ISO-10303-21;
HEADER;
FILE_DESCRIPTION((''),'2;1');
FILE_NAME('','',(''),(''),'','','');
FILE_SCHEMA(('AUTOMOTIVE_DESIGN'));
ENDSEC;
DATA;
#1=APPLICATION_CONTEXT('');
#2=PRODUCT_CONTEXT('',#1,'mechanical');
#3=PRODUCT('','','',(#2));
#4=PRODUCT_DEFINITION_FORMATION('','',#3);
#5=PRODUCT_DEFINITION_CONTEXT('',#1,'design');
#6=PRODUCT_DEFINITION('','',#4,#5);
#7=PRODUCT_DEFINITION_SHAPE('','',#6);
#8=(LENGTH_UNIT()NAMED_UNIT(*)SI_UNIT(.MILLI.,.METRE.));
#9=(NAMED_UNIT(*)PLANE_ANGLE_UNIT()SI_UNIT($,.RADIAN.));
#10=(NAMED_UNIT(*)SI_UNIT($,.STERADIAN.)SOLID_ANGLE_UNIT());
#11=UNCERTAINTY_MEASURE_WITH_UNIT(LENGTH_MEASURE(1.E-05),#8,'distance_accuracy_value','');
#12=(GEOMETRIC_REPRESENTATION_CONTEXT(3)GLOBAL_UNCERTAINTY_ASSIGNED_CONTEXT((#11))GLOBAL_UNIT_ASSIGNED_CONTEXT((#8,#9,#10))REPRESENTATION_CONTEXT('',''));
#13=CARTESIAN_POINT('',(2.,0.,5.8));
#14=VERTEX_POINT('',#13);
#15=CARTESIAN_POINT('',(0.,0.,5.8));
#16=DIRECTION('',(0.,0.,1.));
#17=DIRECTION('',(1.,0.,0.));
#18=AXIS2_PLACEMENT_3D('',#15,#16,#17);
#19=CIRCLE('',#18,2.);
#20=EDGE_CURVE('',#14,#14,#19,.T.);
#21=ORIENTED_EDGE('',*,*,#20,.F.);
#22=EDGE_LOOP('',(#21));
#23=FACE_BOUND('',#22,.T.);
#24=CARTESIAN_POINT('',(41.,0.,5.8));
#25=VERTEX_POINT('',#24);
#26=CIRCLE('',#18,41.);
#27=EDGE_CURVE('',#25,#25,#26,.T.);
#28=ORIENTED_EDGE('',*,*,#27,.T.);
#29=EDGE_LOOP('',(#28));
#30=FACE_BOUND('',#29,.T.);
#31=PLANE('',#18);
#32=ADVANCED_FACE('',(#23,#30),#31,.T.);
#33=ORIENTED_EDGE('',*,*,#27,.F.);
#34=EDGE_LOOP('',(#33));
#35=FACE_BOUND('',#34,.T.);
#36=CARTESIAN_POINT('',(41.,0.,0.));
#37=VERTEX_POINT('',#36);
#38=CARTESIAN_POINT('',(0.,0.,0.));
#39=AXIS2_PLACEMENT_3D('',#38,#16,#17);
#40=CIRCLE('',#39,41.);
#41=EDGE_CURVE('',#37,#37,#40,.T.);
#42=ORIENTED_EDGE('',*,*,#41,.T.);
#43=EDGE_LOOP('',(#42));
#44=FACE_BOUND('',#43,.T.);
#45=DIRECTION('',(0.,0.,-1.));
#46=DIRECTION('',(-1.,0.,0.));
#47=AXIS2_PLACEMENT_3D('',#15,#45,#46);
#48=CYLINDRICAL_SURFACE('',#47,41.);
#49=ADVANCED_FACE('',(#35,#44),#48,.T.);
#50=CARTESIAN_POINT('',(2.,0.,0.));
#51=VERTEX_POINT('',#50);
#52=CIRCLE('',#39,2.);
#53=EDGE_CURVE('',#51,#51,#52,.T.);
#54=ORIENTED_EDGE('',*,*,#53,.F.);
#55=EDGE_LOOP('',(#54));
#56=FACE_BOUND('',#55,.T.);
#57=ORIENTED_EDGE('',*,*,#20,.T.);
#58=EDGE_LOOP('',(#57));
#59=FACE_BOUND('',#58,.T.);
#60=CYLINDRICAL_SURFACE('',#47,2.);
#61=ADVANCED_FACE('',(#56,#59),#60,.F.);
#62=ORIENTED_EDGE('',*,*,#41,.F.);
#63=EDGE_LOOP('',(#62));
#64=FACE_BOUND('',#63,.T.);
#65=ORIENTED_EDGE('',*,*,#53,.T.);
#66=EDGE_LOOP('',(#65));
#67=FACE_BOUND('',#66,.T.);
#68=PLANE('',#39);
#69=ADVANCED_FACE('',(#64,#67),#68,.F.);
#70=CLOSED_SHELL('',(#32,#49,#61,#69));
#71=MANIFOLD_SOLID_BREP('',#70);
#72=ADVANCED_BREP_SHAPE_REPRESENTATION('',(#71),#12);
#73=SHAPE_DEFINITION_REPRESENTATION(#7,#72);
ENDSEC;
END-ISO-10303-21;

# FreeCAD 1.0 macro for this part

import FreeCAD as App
import Part
import Sketcher
from FreeCAD import Vector

doc = App.newDocument("Part")
body = doc.addObject("PartDesign::Body", "Body")

# Sketch on XY plane
sketch1 = body.newObject("Sketcher::SketchObject", "Sketch")
sketch1.AttachmentSupport = (doc.getObject("XY_Plane"), [""])
sketch1.MapMode = "FlatFace"
sketch1.addGeometry([
    Part.Circle(Vector(0, 0, 0), Vector(0, 0, 1), 41),
    Part.Circle(Vector(0, 0, 0), Vector(0, 0, 1), 2),
], False)
sketch1.addConstraint([
    Sketcher.Constraint("Coincident", 0, 3, -1, 1),
    Sketcher.Constraint("Coincident", 1, 3, -1, 1),
    Sketcher.Constraint("Diameter", 0, 82.0),
    Sketcher.Constraint("Diameter", 1, 4.0),
])
pad1 = body.newObject("PartDesign::Pad", "Pad")
pad1.Profile = sketch1
pad1.Length = 5.8

doc.recompute()
